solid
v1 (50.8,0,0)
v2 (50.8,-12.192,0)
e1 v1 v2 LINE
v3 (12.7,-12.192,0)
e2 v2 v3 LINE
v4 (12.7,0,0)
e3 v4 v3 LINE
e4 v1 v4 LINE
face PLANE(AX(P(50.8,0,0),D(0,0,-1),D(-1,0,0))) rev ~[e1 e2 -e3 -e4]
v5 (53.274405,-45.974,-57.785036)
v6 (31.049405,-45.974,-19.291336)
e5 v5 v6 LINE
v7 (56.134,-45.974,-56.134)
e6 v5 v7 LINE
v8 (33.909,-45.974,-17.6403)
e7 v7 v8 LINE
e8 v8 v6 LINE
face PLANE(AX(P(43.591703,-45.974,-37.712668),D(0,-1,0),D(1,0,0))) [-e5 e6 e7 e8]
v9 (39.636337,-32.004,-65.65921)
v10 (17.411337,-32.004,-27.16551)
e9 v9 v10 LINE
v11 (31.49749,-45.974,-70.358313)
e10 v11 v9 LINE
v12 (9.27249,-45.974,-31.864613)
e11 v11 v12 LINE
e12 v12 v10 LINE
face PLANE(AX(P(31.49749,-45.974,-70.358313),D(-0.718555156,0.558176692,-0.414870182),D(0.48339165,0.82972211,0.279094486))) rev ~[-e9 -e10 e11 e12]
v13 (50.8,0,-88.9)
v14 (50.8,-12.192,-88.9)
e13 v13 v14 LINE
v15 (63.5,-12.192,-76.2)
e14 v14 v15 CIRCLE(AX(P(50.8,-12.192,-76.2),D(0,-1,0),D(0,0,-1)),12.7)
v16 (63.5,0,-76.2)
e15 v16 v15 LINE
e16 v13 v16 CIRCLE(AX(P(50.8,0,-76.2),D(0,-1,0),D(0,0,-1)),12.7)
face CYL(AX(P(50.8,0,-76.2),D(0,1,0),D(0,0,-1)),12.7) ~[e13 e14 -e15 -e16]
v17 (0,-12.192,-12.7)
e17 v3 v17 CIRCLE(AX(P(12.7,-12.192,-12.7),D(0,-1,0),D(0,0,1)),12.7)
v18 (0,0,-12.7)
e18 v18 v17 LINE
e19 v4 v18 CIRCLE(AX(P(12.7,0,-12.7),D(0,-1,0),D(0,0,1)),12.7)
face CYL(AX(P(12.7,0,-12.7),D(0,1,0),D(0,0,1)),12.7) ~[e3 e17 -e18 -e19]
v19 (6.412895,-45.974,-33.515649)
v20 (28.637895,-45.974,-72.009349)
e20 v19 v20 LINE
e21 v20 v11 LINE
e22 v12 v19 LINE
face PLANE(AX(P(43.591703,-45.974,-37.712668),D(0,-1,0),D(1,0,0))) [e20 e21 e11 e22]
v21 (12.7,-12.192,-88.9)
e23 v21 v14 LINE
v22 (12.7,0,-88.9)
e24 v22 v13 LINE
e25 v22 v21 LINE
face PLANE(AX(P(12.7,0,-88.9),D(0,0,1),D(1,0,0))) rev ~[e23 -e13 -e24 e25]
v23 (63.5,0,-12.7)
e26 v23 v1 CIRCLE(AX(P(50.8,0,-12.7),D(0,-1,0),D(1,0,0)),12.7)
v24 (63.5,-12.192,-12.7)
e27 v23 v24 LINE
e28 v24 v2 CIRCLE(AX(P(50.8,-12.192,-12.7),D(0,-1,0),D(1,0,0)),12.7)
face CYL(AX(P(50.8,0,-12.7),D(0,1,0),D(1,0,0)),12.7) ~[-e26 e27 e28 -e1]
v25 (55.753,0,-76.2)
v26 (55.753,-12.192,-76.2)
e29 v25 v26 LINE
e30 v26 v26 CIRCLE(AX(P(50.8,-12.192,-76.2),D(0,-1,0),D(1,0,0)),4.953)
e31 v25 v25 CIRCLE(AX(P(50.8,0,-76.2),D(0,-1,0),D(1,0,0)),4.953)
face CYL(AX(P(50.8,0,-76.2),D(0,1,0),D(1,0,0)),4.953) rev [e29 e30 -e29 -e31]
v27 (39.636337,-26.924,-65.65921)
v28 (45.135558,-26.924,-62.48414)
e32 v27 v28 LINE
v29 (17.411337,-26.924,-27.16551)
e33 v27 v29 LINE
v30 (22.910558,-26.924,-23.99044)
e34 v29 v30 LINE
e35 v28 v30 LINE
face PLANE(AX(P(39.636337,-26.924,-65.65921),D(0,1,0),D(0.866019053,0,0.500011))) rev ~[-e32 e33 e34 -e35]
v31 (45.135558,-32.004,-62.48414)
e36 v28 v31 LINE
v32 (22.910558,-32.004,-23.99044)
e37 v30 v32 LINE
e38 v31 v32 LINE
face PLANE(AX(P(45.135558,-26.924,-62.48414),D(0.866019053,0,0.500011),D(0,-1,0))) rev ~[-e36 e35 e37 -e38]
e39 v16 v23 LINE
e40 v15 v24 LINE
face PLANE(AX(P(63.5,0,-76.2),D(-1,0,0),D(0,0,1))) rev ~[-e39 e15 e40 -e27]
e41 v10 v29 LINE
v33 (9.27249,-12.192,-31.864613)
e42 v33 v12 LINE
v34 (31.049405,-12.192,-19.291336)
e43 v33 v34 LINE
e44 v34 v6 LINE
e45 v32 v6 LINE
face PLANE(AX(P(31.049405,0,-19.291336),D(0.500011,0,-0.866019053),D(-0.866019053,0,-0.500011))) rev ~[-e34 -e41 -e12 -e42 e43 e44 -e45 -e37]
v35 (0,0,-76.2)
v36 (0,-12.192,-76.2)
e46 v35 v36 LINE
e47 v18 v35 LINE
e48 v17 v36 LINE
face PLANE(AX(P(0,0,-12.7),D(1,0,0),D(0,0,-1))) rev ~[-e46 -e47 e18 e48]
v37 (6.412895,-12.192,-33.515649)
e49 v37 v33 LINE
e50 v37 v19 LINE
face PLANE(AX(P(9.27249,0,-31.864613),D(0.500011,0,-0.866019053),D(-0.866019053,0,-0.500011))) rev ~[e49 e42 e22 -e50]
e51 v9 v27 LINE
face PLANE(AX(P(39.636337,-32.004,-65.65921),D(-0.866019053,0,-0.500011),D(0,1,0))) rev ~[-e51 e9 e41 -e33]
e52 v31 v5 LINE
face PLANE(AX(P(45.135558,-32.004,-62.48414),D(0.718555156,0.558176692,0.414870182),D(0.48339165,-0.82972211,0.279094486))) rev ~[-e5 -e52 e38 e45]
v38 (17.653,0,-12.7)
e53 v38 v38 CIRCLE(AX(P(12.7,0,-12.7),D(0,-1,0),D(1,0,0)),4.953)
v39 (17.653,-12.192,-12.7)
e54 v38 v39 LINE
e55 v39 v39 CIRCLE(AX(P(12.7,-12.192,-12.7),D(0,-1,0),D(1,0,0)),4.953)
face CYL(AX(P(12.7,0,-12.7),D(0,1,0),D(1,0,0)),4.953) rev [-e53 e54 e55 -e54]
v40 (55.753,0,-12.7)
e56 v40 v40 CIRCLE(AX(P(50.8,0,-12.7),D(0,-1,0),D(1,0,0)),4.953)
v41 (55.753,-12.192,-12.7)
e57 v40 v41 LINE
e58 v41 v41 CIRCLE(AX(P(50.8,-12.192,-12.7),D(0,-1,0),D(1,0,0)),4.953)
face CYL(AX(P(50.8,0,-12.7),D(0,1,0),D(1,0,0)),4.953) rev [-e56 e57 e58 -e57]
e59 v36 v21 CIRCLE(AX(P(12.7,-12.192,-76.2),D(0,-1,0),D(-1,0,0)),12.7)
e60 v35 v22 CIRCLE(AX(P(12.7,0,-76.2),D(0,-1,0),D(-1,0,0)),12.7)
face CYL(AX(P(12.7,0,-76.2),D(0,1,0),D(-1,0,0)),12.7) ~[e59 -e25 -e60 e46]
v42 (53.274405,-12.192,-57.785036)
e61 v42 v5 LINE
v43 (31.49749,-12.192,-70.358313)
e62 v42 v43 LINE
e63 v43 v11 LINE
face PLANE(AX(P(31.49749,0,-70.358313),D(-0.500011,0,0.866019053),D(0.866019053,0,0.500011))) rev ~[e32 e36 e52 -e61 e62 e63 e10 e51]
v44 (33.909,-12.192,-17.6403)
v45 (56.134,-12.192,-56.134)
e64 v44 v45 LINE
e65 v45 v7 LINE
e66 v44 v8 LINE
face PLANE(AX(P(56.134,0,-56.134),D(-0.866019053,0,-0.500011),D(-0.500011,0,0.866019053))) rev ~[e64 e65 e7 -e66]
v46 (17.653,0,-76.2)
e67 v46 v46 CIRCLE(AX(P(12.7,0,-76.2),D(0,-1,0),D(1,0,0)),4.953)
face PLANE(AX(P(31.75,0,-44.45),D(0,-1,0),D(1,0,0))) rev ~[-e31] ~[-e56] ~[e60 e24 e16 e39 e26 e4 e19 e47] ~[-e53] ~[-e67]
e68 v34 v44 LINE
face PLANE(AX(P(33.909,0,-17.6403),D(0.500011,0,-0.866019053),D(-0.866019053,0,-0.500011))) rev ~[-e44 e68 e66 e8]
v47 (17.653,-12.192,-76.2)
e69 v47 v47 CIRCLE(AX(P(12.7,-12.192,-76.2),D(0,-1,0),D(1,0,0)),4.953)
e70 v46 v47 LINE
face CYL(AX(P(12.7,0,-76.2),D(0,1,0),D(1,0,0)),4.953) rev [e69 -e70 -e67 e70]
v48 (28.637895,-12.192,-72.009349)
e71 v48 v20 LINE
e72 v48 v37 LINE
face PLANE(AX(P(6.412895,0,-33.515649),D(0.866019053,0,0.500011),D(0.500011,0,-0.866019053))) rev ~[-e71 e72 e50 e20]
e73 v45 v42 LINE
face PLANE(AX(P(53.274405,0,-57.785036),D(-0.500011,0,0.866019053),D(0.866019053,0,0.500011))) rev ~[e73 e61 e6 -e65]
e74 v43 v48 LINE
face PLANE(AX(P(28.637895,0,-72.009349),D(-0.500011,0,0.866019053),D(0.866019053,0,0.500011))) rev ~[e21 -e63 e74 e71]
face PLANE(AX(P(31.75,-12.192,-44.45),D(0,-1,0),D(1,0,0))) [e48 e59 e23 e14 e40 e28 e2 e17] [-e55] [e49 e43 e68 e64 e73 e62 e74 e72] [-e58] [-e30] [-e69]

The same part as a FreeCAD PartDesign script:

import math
import FreeCAD as App
import Part
import Sketcher
Q = App.Units.Quantity

doc = App.newDocument("Part")
body = doc.addObject("PartDesign::Body", "Body")

# Sketch on XZ plane
sketch1 = body.newObject("Sketcher::SketchObject", "Sketch")
sketch1.AttachmentSupport = (doc.getObject("XZ_Plane"), [""])
sketch1.MapMode = "FlatFace"
sketch1.addGeometry([
    Part.LineSegment(App.Vector(50.8, 0, 0), App.Vector(12.7, 0, 0)),  # 0
    Part.ArcOfCircle(Part.Circle(App.Vector(12.7, -12.7, 0), App.Vector(0, 0, 1), 12.7), math.radians(90), math.radians(180)),  # 1
    Part.LineSegment(App.Vector(0, -12.7, 0), App.Vector(0, -76.2, 0)),  # 2
    Part.ArcOfCircle(Part.Circle(App.Vector(12.7, -76.2, 0), App.Vector(0, 0, 1), 12.7), math.radians(180), math.radians(270)),  # 3
    Part.LineSegment(App.Vector(12.7, -88.9, 0), App.Vector(50.8, -88.9, 0)),  # 4
    Part.ArcOfCircle(Part.Circle(App.Vector(50.8, -76.2, 0), App.Vector(0, 0, 1), 12.7), math.radians(-90), math.radians(0)),  # 5
    Part.LineSegment(App.Vector(63.5, -76.2, 0), App.Vector(63.5, -12.7, 0)),  # 6
    Part.ArcOfCircle(Part.Circle(App.Vector(50.8, -12.7, 0), App.Vector(0, 0, 1), 12.7), math.radians(0), math.radians(90)),  # 7
    Part.Circle(App.Vector(12.7, -76.2, 0), App.Vector(0, 0, 1), 5),  # 8
    Part.Circle(App.Vector(50.8, -76.2, 0), App.Vector(0, 0, 1), 5),  # 9
    Part.LineSegment(App.Vector(9.3, -31.9, 0), App.Vector(31, -19.3, 0)),  # 10
    Part.LineSegment(App.Vector(31, -19.3, 0), App.Vector(33.9, -17.6, 0)),  # 11
    Part.LineSegment(App.Vector(33.9, -17.6, 0), App.Vector(56.1, -56.1, 0)),  # 12
    Part.LineSegment(App.Vector(56.1, -56.1, 0), App.Vector(53.3, -57.8, 0)),  # 13
    Part.LineSegment(App.Vector(53.3, -57.8, 0), App.Vector(31.5, -70.4, 0)),  # 14
    Part.LineSegment(App.Vector(31.5, -70.4, 0), App.Vector(28.6, -72, 0)),  # 15
    Part.LineSegment(App.Vector(28.6, -72, 0), App.Vector(6.4, -33.5, 0)),  # 16
    Part.LineSegment(App.Vector(6.4, -33.5, 0), App.Vector(9.3, -31.9, 0)),  # 17
    Part.Circle(App.Vector(12.7, -12.7, 0), App.Vector(0, 0, 1), 5),  # 18
    Part.Circle(App.Vector(50.8, -12.7, 0), App.Vector(0, 0, 1), 5),  # 19
], False)
sketch1.addConstraint([
    Sketcher.Constraint("Tangent", 0, 2, 1, 1),
    Sketcher.Constraint("Tangent", 1, 2, 2, 1),
    Sketcher.Constraint("Tangent", 2, 2, 3, 1),
    Sketcher.Constraint("Tangent", 3, 2, 4, 1),
    Sketcher.Constraint("Tangent", 4, 2, 5, 1),
    Sketcher.Constraint("Tangent", 5, 2, 6, 1),
    Sketcher.Constraint("Tangent", 6, 2, 7, 1),
    Sketcher.Constraint("Tangent", 7, 2, 0, 1),
    Sketcher.Constraint("Coincident", 10, 2, 11, 1),
    Sketcher.Constraint("Coincident", 11, 2, 12, 1),
    Sketcher.Constraint("Coincident", 12, 2, 13, 1),
    Sketcher.Constraint("Coincident", 13, 2, 14, 1),
    Sketcher.Constraint("Coincident", 14, 2, 15, 1),
    Sketcher.Constraint("Coincident", 15, 2, 16, 1),
    Sketcher.Constraint("Coincident", 16, 2, 17, 1),
    Sketcher.Constraint("Coincident", 17, 2, 10, 1),
    Sketcher.Constraint("Horizontal", 0),
    Sketcher.Constraint("Vertical", 2),
    Sketcher.Constraint("Horizontal", 4),
    Sketcher.Constraint("Vertical", 6),
    Sketcher.Constraint("Coincident", 8, 3, 3, 3),
    Sketcher.Constraint("Coincident", 9, 3, 5, 3),
    Sketcher.Constraint("Coincident", 18, 3, 1, 3),
    Sketcher.Constraint("Coincident", 19, 3, 7, 3),
    Sketcher.Constraint("Equal", 1, 3),
    Sketcher.Constraint("Equal", 3, 5),
    Sketcher.Constraint("Equal", 5, 7),
    Sketcher.Constraint("Equal", 8, 9),
    Sketcher.Constraint("Equal", 9, 18),
    Sketcher.Constraint("Equal", 18, 19),
    Sketcher.Constraint("PointOnObject", 0, 2, -1),
    Sketcher.Constraint("PointOnObject", 1, 2, -2),
    Sketcher.Constraint("Parallel", 10, 11),
    Sketcher.Constraint("Perpendicular", 11, 12),
    Sketcher.Constraint("Perpendicular", 12, 13),
    Sketcher.Constraint("Parallel", 13, 14),
    Sketcher.Constraint("Parallel", 14, 15),
    Sketcher.Constraint("Perpendicular", 15, 16),
    Sketcher.Constraint("Perpendicular", 16, 17),
    Sketcher.Constraint("Equal", 11, 13),
    Sketcher.Constraint("Equal", 10, 14),
    Sketcher.Constraint("Equal", 13, 15),
    Sketcher.Constraint("Radius", 1, Q("0.5 in")),
    Sketcher.Constraint("Diameter", 8, Q("0.39 in")),
    Sketcher.Constraint("DistanceX", 0, 2, 0, 1, Q("1.5 in")),
    Sketcher.Constraint("DistanceY", 2, 2, 2, 1, Q("2.5 in")),
    Sketcher.Constraint("Distance", 10, Q("0.99 in")),
    Sketcher.Constraint("Distance", 11, Q("0.13 in")),
    Sketcher.Constraint("DistanceX", -1, 1, 12, 2, Q("2.21 in")),
    Sketcher.Constraint("DistanceY", 12, 2, -1, 1, Q("2.21 in")),
    Sketcher.Constraint("DistanceX", -1, 1, 11, 2, Q("1.335 in")),
    Sketcher.Constraint("DistanceY", 11, 2, -1, 1, Q("0.6945 in")),
])
pad1 = body.newObject("PartDesign::Pad", "Pad")
pad1.Profile = sketch1
pad1.Length = Q("0.48 in")

# Sketch on XZ plane
sketch2 = body.newObject("Sketcher::SketchObject", "Sketch001")
sketch2.AttachmentSupport = (doc.getObject("XZ_Plane"), [""])
sketch2.MapMode = "FlatFace"
sketch2.addGeometry([
    Part.LineSegment(App.Vector(56.1, -56.1, 0), App.Vector(33.9, -17.6, 0)),  # 0
    Part.LineSegment(App.Vector(33.9, -17.6, 0), App.Vector(31, -19.3, 0)),  # 1
    Part.LineSegment(App.Vector(31, -19.3, 0), App.Vector(9.3, -31.9, 0)),  # 2
    Part.LineSegment(App.Vector(9.3, -31.9, 0), App.Vector(6.4, -33.5, 0)),  # 3
    Part.LineSegment(App.Vector(6.4, -33.5, 0), App.Vector(28.6, -72, 0)),  # 4
    Part.LineSegment(App.Vector(28.6, -72, 0), App.Vector(31.5, -70.4, 0)),  # 5
    Part.LineSegment(App.Vector(31.5, -70.4, 0), App.Vector(53.3, -57.8, 0)),  # 6
    Part.LineSegment(App.Vector(53.3, -57.8, 0), App.Vector(56.1, -56.1, 0)),  # 7
], False)
sketch2.addConstraint([
    Sketcher.Constraint("Coincident", 0, 2, 1, 1),
    Sketcher.Constraint("Coincident", 1, 2, 2, 1),
    Sketcher.Constraint("Coincident", 2, 2, 3, 1),
    Sketcher.Constraint("Coincident", 3, 2, 4, 1),
    Sketcher.Constraint("Coincident", 4, 2, 5, 1),
    Sketcher.Constraint("Coincident", 5, 2, 6, 1),
    Sketcher.Constraint("Coincident", 6, 2, 7, 1),
    Sketcher.Constraint("Coincident", 7, 2, 0, 1),
    Sketcher.Constraint("Perpendicular", 0, 1),
    Sketcher.Constraint("Parallel", 1, 2),
    Sketcher.Constraint("Parallel", 2, 3),
    Sketcher.Constraint("Perpendicular", 3, 4),
    Sketcher.Constraint("Perpendicular", 4, 5),
    Sketcher.Constraint("Parallel", 5, 6),
    Sketcher.Constraint("Parallel", 6, 7),
    Sketcher.Constraint("Equal", 1, 3),
    Sketcher.Constraint("Equal", 3, 5),
    Sketcher.Constraint("Equal", 2, 6),
    Sketcher.Constraint("Distance", 1, Q("0.13 in")),
    Sketcher.Constraint("Distance", 2, Q("0.99 in")),
    Sketcher.Constraint("DistanceX", -1, 1, 7, 2, Q("2.21 in")),
    Sketcher.Constraint("DistanceY", 7, 2, -1, 1, Q("2.21 in")),
    Sketcher.Constraint("DistanceX", -1, 1, 0, 2, Q("1.335 in")),
    Sketcher.Constraint("DistanceY", 0, 2, -1, 1, Q("0.6945 in")),
])
pad2 = body.newObject("PartDesign::Pad", "Pad001")
pad2.Profile = sketch2
pad2.Length = Q("1.81 in")

# Sketch on an angled plane
sketch3 = body.newObject("Sketcher::SketchObject", "Sketch002")
sketch3.Placement = App.Placement(App.Vector(38.341209, 0, -66.406974), App.Rotation(App.Vector(0.866019053, 0, 0.500011), App.Vector(0, -1, 0), App.Vector(0.500011, 0, -0.866019053), "ZXY"))
sketch3.addGeometry([
    Part.LineSegment(App.Vector(-8, 46, 0), App.Vector(1, 32, 0)),  # 0
    Part.LineSegment(App.Vector(1, 32, 0), App.Vector(1, 27, 0)),  # 1
    Part.LineSegment(App.Vector(1, 27, 0), App.Vector(8, 27, 0)),  # 2
    Part.LineSegment(App.Vector(8, 27, 0), App.Vector(8, 32, 0)),  # 3
    Part.LineSegment(App.Vector(8, 32, 0), App.Vector(17, 46, 0)),  # 4
    Part.LineSegment(App.Vector(17, 46, 0), App.Vector(-8, 46, 0)),  # 5
], False)
sketch3.addConstraint([
    Sketcher.Constraint("Coincident", 0, 2, 1, 1),
    Sketcher.Constraint("Coincident", 1, 2, 2, 1),
    Sketcher.Constraint("Coincident", 2, 2, 3, 1),
    Sketcher.Constraint("Coincident", 3, 2, 4, 1),
    Sketcher.Constraint("Coincident", 4, 2, 5, 1),
    Sketcher.Constraint("Coincident", 5, 2, 0, 1),
    Sketcher.Constraint("Vertical", 1),
    Sketcher.Constraint("Horizontal", 2),
    Sketcher.Constraint("Vertical", 3),
    Sketcher.Constraint("Horizontal", 5),
    Sketcher.Constraint("Horizontal", 0, 2, 3, 2),
    Sketcher.Constraint("Equal", 0, 4),
    Sketcher.Constraint("DistanceY", 1, 2, 1, 1, Q("0.2 in")),
    Sketcher.Constraint("DistanceX", 2, 1, 2, 2, Q("0.25 in")),
    Sketcher.Constraint("DistanceX", 5, 2, 5, 1, Q("0.99 in")),
    Sketcher.Constraint("DistanceY", -1, 1, 0, 2, Q("1.26 in")),
    Sketcher.Constraint("DistanceY", -1, 1, 4, 2, Q("1.81 in")),
    Sketcher.Constraint("DistanceX", -1, 1, 0, 2, 1.495496),
])
pocket1 = body.newObject("PartDesign::Pocket", "Pocket")
pocket1.Profile = sketch3
pocket1.Length = Q("8 in")

doc.recompute()
